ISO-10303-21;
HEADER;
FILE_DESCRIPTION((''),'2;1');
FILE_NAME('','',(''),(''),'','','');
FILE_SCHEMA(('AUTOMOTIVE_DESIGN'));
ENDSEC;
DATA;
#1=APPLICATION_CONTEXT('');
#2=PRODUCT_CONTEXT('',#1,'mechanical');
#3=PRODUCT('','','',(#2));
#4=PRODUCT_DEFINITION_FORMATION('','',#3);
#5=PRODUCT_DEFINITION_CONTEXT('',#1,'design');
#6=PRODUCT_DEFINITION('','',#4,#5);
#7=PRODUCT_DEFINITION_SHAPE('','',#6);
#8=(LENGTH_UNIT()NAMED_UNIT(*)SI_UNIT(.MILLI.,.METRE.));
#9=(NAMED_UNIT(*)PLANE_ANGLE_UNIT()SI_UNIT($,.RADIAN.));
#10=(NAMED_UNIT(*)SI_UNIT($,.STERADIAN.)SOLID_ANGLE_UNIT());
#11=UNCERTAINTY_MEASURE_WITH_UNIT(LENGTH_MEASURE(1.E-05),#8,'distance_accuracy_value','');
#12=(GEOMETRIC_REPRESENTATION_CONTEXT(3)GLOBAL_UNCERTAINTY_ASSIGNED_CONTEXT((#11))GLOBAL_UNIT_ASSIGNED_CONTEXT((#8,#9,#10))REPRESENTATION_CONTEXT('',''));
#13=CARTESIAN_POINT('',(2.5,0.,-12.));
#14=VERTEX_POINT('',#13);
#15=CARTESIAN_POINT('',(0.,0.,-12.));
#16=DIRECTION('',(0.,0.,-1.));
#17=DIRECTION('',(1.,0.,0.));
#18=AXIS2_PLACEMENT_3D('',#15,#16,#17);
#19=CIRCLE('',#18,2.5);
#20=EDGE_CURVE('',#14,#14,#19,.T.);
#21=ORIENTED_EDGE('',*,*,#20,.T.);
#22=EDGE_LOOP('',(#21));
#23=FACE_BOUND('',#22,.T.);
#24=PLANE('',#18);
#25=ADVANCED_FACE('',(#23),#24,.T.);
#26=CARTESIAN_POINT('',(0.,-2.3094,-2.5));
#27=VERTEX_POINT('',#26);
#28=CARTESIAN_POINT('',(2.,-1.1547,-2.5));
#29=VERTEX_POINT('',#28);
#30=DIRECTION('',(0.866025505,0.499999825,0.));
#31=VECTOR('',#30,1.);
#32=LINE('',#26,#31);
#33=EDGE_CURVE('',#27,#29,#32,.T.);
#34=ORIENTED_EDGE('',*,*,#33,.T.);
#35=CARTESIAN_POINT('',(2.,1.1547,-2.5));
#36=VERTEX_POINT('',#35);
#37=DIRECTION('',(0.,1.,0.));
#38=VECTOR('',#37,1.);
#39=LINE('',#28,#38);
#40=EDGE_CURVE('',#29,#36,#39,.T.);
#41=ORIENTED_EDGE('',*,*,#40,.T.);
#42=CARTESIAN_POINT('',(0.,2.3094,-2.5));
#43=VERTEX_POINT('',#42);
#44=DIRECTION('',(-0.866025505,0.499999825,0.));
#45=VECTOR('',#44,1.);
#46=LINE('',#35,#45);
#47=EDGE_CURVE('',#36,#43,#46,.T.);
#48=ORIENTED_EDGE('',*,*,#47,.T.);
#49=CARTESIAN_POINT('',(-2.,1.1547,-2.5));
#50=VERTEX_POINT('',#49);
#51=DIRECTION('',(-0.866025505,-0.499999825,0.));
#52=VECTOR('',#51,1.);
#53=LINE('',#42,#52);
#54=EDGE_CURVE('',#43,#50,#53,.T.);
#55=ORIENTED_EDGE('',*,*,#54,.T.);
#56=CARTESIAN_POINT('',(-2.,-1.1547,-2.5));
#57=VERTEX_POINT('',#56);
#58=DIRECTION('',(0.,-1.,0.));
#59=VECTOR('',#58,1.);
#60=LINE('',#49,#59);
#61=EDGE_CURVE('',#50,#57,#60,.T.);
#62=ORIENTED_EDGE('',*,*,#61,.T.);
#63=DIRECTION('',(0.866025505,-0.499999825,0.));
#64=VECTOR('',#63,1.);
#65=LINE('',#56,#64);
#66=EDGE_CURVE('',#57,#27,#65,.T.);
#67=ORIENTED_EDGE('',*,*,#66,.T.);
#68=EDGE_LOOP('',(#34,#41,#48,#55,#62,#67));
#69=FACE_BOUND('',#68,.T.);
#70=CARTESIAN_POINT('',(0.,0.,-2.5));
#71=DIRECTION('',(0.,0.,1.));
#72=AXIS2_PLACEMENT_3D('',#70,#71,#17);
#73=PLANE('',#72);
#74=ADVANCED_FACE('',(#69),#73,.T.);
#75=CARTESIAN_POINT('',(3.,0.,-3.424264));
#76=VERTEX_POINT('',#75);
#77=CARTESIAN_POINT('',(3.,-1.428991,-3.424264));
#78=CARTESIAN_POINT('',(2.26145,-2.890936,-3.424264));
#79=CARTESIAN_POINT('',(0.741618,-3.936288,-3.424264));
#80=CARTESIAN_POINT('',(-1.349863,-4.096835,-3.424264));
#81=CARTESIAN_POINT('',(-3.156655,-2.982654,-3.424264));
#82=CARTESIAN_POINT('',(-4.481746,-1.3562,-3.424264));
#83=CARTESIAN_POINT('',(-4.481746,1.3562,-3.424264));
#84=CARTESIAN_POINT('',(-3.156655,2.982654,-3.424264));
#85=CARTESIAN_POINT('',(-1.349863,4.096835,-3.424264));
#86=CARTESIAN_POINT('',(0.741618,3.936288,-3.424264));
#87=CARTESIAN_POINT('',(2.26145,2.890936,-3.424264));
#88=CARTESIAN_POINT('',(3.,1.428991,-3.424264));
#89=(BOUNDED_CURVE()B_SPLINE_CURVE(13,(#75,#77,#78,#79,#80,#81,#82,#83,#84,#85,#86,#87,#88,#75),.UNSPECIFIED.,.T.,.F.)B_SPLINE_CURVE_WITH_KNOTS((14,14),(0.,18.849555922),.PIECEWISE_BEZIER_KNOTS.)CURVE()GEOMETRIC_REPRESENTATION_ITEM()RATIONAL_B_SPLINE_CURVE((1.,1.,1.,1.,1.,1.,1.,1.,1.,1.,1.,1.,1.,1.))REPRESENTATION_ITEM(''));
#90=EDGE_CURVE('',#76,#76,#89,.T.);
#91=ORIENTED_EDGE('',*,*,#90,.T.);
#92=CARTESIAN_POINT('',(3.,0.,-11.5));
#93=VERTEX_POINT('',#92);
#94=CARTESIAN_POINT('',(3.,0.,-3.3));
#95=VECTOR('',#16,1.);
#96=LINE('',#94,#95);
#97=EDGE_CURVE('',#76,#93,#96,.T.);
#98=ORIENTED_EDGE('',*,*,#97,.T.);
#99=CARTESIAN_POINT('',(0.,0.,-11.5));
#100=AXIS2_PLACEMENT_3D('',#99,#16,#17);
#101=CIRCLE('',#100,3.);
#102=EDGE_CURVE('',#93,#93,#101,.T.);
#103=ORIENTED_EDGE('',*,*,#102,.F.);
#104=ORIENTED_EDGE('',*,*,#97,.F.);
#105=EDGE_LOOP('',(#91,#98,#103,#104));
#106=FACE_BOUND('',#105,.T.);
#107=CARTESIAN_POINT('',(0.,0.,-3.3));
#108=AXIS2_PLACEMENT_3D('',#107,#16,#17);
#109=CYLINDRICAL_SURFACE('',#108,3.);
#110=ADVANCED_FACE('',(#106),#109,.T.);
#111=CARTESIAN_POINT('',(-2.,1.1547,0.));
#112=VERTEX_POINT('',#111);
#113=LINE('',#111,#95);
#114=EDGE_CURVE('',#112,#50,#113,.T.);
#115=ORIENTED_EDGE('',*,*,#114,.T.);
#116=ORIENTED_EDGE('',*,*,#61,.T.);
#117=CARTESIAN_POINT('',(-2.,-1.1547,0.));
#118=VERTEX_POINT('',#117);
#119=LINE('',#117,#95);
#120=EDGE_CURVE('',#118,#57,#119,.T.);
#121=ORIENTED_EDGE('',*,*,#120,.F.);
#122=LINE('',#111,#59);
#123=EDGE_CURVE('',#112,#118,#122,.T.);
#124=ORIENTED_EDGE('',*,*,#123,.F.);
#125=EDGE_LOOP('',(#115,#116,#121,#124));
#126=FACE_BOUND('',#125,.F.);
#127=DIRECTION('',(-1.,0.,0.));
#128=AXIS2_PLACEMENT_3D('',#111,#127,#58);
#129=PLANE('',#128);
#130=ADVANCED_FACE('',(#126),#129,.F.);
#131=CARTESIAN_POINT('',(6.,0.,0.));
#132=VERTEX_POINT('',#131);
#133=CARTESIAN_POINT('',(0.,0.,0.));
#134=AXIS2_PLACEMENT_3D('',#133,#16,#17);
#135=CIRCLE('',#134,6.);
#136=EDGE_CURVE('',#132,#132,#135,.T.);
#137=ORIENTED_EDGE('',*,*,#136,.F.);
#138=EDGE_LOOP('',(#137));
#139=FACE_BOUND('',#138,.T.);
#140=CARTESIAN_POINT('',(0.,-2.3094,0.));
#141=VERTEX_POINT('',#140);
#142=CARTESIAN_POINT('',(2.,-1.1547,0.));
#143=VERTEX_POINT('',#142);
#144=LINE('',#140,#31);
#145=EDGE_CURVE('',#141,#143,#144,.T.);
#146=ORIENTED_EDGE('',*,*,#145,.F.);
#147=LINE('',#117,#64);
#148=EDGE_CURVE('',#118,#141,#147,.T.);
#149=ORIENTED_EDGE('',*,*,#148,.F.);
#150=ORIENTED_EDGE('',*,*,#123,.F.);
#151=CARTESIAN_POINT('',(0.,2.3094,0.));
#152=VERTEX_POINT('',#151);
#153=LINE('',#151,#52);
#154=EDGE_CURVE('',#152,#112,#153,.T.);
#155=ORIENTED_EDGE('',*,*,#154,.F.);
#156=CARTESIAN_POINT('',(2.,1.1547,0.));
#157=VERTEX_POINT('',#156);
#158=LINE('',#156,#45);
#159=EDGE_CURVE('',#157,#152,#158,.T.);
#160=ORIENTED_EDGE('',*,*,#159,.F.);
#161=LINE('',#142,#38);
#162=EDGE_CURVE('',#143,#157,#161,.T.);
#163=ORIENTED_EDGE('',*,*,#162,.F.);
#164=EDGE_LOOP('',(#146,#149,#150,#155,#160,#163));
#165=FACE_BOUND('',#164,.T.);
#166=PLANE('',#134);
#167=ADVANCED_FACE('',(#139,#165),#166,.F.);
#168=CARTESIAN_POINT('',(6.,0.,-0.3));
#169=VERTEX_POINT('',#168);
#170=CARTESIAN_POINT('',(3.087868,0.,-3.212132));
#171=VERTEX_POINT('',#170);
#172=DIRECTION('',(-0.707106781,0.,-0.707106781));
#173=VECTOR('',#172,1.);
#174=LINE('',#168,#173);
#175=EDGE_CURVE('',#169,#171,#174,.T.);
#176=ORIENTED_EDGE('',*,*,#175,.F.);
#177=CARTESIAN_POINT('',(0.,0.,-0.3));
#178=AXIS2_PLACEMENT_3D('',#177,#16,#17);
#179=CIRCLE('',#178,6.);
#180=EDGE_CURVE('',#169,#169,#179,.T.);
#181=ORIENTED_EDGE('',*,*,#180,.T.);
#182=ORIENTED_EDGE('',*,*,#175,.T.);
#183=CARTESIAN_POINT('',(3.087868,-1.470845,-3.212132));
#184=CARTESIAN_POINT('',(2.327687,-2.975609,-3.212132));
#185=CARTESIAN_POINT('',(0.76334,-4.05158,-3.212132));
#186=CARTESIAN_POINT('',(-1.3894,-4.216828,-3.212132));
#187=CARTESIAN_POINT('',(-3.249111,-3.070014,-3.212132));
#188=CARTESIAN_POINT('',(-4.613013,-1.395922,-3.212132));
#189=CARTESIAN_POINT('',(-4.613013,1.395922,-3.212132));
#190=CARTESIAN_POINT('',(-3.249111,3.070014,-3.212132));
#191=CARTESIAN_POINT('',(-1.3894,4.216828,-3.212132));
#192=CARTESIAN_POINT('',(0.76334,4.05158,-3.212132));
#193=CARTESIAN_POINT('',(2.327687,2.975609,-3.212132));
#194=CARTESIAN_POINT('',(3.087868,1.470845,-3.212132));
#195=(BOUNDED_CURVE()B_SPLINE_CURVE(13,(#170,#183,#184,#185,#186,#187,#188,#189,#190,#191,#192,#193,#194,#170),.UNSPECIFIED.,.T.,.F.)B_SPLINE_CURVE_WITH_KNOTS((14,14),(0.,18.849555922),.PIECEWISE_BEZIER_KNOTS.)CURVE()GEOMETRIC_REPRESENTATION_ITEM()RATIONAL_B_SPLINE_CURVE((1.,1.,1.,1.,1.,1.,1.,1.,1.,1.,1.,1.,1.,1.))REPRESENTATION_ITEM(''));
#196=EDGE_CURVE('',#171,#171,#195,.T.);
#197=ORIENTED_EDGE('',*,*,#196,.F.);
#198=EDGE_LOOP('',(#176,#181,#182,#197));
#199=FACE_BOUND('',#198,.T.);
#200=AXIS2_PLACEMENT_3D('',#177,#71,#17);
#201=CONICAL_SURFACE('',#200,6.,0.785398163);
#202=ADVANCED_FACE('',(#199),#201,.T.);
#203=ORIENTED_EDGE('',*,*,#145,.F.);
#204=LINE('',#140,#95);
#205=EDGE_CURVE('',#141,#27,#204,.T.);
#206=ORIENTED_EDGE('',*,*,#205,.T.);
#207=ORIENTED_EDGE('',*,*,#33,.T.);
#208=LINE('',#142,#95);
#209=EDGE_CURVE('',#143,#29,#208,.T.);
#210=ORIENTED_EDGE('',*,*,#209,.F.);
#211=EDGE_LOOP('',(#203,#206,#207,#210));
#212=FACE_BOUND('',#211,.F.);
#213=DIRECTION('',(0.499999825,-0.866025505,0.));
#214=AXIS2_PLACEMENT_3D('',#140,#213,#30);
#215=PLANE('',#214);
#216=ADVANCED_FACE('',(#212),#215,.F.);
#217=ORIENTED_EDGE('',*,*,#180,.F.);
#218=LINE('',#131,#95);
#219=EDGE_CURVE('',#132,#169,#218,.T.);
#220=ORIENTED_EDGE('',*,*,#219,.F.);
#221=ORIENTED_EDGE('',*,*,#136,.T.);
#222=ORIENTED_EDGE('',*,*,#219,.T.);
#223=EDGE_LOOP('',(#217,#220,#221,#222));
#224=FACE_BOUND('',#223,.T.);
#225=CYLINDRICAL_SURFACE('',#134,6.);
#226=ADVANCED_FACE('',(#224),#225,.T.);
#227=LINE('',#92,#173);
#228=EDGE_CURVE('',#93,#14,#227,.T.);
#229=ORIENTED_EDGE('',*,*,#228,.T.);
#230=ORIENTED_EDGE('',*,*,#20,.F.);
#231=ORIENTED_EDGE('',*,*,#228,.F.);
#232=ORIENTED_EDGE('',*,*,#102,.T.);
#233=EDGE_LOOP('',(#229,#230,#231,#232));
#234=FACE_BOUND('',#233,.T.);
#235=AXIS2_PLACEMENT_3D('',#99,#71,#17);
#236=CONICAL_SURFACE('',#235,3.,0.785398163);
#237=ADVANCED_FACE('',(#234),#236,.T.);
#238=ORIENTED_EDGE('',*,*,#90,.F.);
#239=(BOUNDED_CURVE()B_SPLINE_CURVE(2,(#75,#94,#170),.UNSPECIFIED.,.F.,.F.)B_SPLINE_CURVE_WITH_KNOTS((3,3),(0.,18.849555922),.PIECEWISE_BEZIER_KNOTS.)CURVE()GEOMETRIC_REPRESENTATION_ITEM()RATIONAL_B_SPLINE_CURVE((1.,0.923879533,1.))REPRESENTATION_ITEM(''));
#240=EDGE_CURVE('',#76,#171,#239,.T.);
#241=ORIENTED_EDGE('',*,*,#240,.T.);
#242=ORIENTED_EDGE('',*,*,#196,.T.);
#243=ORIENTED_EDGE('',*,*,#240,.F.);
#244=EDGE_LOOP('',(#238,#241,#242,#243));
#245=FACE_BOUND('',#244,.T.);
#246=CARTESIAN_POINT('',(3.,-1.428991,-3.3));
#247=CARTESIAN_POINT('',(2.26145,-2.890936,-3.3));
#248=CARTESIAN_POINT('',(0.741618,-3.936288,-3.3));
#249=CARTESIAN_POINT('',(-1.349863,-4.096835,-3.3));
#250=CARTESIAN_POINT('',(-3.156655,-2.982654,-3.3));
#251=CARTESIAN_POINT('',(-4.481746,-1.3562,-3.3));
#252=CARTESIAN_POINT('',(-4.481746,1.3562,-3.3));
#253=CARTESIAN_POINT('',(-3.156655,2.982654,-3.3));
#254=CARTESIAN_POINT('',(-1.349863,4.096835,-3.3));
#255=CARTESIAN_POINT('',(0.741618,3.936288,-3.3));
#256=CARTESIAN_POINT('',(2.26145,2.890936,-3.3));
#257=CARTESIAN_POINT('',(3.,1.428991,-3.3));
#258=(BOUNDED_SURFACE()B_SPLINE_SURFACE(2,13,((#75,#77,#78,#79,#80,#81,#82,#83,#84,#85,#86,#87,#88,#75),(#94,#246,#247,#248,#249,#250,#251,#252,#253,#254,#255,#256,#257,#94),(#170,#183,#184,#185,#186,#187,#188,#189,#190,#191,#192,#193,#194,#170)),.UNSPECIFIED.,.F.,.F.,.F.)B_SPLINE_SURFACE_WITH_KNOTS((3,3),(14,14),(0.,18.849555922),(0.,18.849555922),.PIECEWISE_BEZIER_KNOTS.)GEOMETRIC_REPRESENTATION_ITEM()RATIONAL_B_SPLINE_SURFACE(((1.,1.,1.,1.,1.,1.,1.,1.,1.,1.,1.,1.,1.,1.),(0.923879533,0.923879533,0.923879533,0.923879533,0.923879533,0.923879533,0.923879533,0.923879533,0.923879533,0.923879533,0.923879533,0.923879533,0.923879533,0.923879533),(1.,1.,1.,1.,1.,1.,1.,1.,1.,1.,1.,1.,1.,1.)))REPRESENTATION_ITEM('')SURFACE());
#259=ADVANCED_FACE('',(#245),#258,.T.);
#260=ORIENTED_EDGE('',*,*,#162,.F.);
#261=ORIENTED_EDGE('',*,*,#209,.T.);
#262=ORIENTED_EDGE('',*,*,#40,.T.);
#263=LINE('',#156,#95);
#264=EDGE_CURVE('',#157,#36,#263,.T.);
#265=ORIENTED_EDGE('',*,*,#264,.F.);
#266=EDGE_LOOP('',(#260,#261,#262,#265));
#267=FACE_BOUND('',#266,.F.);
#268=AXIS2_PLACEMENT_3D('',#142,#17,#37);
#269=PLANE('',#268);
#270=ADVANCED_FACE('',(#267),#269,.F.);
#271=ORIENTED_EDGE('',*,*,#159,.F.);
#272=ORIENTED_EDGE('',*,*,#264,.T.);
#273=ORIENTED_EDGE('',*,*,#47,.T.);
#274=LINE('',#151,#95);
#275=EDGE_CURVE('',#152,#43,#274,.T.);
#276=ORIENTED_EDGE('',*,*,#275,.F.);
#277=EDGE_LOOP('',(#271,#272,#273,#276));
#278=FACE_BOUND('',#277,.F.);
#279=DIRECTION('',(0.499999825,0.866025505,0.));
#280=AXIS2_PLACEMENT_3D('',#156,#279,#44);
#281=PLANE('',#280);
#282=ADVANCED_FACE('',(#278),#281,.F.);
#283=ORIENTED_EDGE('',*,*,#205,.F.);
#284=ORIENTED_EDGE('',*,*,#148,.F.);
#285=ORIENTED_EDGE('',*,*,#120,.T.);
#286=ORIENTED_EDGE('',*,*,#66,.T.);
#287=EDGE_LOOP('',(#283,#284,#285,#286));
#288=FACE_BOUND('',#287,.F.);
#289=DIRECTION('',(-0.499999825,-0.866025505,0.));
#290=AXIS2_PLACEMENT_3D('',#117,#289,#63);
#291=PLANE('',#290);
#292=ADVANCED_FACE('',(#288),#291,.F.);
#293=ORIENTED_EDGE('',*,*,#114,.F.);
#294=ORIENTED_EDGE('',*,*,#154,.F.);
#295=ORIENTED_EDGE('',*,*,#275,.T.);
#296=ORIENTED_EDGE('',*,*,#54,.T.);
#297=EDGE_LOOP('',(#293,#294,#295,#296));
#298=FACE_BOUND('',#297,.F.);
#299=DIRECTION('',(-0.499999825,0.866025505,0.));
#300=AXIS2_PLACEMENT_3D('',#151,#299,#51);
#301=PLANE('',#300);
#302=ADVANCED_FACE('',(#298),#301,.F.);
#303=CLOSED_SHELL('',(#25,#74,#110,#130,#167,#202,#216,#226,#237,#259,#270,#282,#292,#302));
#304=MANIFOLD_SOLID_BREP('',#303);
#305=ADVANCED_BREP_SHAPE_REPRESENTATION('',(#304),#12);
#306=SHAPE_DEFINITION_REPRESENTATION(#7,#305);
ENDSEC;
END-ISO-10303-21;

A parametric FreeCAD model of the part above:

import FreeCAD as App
import Part
import Sketcher
Q = App.Units.Quantity


def edges_at(feature, points):
    """Names of the edges that pass closest to the given points."""
    edges = feature.Shape.Edges
    near = lambda p: min(range(len(edges)), key=lambda i: edges[i].distToShape(Part.Vertex(*p))[0])
    return sorted({f"Edge{near(p) + 1}" for p in points})


def add_polygon(sketch, points):
    """Adds a closed chain of lines whose ends are joined by coincident constraints."""
    first, n = sketch.GeometryCount, len(points)
    for a, b in zip(points, points[1:] + points[:1]):
        sketch.addGeometry(Part.LineSegment(App.Vector(*a, 0), App.Vector(*b, 0)), False)
    for i in range(n):
        sketch.addConstraint(Sketcher.Constraint("Coincident", first + i, 2, first + (i + 1) % n, 1))

doc = App.newDocument("Part")
body = doc.addObject("PartDesign::Body", "Body")

# Sketch on XZ plane
sketch1 = body.newObject("Sketcher::SketchObject", "Sketch")
sketch1.AttachmentSupport = (doc.getObject("XZ_Plane"), [""])
sketch1.MapMode = "FlatFace"
add_polygon(sketch1, [(3, -3.3), (3, -12), (0, -12), (0, 0), (6, 0), (6, -0.3)])  # lines 0-5
sketch1.addConstraint(Sketcher.Constraint("Vertical", 0))
sketch1.addConstraint(Sketcher.Constraint("Horizontal", 1))
sketch1.addConstraint(Sketcher.Constraint("Vertical", 2))
sketch1.addConstraint(Sketcher.Constraint("Horizontal", 3))
sketch1.addConstraint(Sketcher.Constraint("Vertical", 4))
sketch1.addConstraint(Sketcher.Constraint("Coincident", 2, 2, -1, 1))
sketch1.addConstraint(Sketcher.Constraint("DistanceX", 1, 2, 1, 1, 3.0))
sketch1.addConstraint(Sketcher.Constraint("DistanceX", 3, 1, 3, 2, 6.0))
sketch1.addConstraint(Sketcher.Constraint("DistanceY", 2, 1, 2, 2, 12.0))
sketch1.addConstraint(Sketcher.Constraint("DistanceY", 4, 2, 4, 1, 0.3))
sketch1.addConstraint(Sketcher.Constraint("DistanceY", 5, 2, 4, 2, 3.0))
revolution = body.newObject("PartDesign::Revolution", "Revolution")
revolution.Profile = sketch1
revolution.ReferenceAxis = (sketch1, ["V_Axis"])
revolution.Angle = 360

# Sketch on XY plane
sketch2 = body.newObject("Sketcher::SketchObject", "Sketch001")
sketch2.AttachmentSupport = (doc.getObject("XY_Plane"), [""])
sketch2.MapMode = "FlatFace"
add_polygon(sketch2, [(0, 2.3), (-2, 1.2), (-2, -1.2), (0, -2.3), (2, -1.2), (2, 1.2)])  # lines 0-5
sketch2.addConstraint(Sketcher.Constraint("Vertical", 1))
sketch2.addConstraint(Sketcher.Constraint("Vertical", 4))
sketch2.addConstraint(Sketcher.Constraint("Symmetric", 0, 2, 3, 2, -1, 1))
sketch2.addConstraint(Sketcher.Constraint("Symmetric", 2, 2, 5, 2, -1, 1))
sketch2.addConstraint(Sketcher.Constraint("PointOnObject", 2, 2, -2))
sketch2.addConstraint(Sketcher.Constraint("Parallel", 2, 5))
sketch2.addConstraint(Sketcher.Constraint("Horizontal", 1, 2, 3, 2))
sketch2.addConstraint(Sketcher.Constraint("DistanceX", 1, 2, 3, 2, 4.0))
sketch2.addConstraint(Sketcher.Constraint("Angle", 0, Q("-150 deg")))
sketch2.addConstraint(Sketcher.Constraint("DistanceY", 1, 2, 1, 1, 2.3094))
pocket1 = body.newObject("PartDesign::Pocket", "Pocket")
pocket1.Profile = sketch2
pocket1.Length = 2.5
doc.recompute()

fillet = body.newObject("PartDesign::Fillet", "Fillet")
fillet.Base = (pocket1, edges_at(pocket1, [(-3, 0, -3.3)]))
fillet.Radius = 0.3
doc.recompute()

chamfer = body.newObject("PartDesign::Chamfer", "Chamfer")
chamfer.Base = (fillet, edges_at(fillet, [(-3, 0, -12)]))
chamfer.Size = 0.5

doc.recompute()
